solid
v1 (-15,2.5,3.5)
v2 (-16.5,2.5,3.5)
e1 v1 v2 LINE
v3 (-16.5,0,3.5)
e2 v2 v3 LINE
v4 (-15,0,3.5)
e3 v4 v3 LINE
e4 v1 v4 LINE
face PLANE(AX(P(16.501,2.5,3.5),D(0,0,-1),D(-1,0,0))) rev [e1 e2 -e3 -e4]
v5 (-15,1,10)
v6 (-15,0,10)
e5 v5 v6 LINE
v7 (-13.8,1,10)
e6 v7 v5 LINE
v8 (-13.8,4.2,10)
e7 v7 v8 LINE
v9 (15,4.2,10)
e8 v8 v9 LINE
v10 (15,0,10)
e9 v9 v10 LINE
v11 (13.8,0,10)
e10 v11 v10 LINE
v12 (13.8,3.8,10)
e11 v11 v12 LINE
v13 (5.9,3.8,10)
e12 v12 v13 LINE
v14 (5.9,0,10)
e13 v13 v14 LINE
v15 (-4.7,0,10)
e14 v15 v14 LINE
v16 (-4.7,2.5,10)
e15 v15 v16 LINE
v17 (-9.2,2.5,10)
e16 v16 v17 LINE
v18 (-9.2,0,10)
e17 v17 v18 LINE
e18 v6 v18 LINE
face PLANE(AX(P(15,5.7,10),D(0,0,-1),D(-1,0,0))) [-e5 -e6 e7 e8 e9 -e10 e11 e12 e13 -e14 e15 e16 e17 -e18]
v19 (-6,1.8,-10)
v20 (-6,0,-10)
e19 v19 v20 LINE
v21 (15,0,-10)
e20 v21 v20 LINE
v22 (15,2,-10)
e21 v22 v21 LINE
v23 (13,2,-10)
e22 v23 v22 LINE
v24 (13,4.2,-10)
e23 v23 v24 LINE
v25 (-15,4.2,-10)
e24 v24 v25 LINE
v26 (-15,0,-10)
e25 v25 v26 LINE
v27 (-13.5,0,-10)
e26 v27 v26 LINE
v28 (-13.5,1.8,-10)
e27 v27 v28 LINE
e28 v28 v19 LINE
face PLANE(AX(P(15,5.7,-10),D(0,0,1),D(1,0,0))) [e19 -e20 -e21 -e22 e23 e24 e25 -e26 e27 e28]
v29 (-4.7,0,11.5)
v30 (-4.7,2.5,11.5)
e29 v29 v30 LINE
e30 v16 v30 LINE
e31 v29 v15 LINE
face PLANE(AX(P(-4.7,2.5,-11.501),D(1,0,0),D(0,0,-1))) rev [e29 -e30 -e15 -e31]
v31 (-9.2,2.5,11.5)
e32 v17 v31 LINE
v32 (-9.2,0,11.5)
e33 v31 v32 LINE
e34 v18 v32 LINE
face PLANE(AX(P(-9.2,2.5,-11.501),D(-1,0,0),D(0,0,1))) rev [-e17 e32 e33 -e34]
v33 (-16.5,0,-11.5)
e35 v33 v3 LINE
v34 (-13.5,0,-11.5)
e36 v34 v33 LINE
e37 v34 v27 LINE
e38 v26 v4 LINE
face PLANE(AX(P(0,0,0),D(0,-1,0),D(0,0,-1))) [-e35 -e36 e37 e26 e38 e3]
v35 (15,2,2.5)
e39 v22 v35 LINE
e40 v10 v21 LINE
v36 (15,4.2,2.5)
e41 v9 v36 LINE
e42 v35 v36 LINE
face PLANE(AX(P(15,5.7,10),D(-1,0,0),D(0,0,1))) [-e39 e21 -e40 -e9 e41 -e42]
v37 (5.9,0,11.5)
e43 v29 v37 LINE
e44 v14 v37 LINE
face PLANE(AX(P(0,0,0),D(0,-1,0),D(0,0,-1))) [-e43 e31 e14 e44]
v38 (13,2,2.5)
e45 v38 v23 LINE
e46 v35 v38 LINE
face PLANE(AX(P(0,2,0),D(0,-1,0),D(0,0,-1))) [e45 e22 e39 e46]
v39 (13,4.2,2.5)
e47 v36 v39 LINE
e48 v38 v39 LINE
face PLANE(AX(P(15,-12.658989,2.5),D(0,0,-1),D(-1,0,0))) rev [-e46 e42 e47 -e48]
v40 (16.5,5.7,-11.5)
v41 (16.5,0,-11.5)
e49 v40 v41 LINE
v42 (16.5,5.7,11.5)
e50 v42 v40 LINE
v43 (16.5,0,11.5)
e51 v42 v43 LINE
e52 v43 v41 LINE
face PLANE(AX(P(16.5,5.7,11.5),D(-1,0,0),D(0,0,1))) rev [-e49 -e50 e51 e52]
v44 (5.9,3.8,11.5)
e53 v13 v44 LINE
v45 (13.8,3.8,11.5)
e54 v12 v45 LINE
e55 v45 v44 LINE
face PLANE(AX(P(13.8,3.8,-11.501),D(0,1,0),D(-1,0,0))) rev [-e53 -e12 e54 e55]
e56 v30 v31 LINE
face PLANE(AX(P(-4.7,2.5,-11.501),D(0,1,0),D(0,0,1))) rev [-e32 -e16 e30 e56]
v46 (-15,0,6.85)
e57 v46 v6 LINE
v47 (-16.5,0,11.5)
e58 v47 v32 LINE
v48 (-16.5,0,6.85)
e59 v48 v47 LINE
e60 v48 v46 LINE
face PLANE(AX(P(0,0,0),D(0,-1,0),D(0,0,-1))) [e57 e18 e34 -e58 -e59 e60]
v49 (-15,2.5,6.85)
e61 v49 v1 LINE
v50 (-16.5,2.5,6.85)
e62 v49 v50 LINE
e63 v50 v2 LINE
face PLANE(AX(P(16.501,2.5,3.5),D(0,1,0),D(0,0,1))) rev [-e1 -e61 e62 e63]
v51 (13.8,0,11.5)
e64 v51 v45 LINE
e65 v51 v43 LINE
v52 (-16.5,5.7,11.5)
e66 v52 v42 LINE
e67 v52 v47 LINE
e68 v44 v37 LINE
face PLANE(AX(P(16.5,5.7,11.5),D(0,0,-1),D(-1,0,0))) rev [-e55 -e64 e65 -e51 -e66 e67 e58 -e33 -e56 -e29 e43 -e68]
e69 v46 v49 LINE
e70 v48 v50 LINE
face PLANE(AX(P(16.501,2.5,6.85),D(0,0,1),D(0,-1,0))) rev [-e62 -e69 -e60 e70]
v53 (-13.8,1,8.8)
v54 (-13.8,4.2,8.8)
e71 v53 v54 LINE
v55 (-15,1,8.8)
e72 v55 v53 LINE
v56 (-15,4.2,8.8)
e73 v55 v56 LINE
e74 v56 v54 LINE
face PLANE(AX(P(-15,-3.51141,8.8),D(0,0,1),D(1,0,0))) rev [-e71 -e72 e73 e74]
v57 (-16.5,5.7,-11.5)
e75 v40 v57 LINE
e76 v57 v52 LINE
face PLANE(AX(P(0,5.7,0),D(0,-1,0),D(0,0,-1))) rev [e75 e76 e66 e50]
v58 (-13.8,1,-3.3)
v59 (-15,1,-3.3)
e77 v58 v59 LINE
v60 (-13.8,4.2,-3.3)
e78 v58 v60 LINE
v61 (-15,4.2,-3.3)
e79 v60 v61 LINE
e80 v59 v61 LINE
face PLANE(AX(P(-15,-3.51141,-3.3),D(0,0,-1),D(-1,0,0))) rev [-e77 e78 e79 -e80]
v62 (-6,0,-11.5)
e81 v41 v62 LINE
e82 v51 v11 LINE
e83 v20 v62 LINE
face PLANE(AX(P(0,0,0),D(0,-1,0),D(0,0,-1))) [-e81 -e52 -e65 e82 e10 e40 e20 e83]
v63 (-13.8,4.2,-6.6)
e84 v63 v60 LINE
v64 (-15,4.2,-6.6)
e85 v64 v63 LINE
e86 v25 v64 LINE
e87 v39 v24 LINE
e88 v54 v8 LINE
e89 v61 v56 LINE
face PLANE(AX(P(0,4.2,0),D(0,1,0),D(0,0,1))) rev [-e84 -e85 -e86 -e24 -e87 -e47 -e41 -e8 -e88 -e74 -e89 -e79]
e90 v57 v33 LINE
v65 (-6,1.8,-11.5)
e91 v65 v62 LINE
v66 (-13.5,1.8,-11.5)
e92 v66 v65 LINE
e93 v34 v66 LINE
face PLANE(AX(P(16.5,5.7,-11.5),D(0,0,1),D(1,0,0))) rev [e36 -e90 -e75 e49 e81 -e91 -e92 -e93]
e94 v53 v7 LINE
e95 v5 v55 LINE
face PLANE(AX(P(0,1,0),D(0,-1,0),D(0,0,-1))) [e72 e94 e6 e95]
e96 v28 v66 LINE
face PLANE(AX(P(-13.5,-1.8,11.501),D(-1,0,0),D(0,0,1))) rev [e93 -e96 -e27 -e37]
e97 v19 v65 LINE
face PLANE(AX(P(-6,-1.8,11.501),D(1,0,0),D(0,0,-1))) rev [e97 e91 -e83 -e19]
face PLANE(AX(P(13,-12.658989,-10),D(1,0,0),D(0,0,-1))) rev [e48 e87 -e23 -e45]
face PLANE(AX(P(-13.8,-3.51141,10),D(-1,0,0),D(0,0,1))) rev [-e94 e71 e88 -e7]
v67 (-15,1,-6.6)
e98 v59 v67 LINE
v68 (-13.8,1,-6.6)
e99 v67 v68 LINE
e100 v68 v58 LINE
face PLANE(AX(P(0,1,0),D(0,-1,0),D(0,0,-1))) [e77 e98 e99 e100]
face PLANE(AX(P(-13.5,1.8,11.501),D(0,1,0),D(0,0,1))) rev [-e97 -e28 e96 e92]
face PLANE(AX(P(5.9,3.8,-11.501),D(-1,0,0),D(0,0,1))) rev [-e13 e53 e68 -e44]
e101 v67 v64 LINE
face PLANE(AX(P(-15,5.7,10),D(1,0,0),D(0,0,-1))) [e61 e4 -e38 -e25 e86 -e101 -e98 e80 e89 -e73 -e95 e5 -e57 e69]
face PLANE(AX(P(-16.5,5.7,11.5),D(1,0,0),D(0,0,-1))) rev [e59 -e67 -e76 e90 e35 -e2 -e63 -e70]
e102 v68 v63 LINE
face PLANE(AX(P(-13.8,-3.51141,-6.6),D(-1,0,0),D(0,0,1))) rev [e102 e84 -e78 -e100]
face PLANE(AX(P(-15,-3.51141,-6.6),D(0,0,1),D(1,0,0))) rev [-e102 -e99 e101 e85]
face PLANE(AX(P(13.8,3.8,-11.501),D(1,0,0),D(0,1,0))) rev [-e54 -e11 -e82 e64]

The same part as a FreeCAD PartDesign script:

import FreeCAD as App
import Part
import Sketcher
Q = App.Units.Quantity

doc = App.newDocument("Part")
body = doc.addObject("PartDesign::Body", "Body")

# Sketch on XZ plane
sketch1 = body.newObject("Sketcher::SketchObject", "Sketch")
sketch1.AttachmentSupport = (doc.getObject("XZ_Plane"), [""])
sketch1.MapMode = "FlatFace"
sketch1.addGeometry([
    Part.LineSegment(App.Vector(-16.5, -11.5, 0), App.Vector(-16.5, 11.5, 0)),  # 0
    Part.LineSegment(App.Vector(-16.5, 11.5, 0), App.Vector(16.5, 11.5, 0)),  # 1
    Part.LineSegment(App.Vector(16.5, 11.5, 0), App.Vector(16.5, -11.5, 0)),  # 2
    Part.LineSegment(App.Vector(16.5, -11.5, 0), App.Vector(-16.5, -11.5, 0)),  # 3
    Part.LineSegment(App.Vector(15, 10, 0), App.Vector(-15, 10, 0)),  # 4
    Part.LineSegment(App.Vector(-15, 10, 0), App.Vector(-15, -10, 0)),  # 5
    Part.LineSegment(App.Vector(-15, -10, 0), App.Vector(15, -10, 0)),  # 6
    Part.LineSegment(App.Vector(15, -10, 0), App.Vector(15, 10, 0)),  # 7
], False)
sketch1.addConstraint([
    Sketcher.Constraint("Coincident", 0, 2, 1, 1),
    Sketcher.Constraint("Coincident", 1, 2, 2, 1),
    Sketcher.Constraint("Coincident", 2, 2, 3, 1),
    Sketcher.Constraint("Coincident", 3, 2, 0, 1),
    Sketcher.Constraint("Coincident", 4, 2, 5, 1),
    Sketcher.Constraint("Coincident", 5, 2, 6, 1),
    Sketcher.Constraint("Coincident", 6, 2, 7, 1),
    Sketcher.Constraint("Coincident", 7, 2, 4, 1),
    Sketcher.Constraint("Vertical", 0),
    Sketcher.Constraint("Horizontal", 1),
    Sketcher.Constraint("Vertical", 2),
    Sketcher.Constraint("Horizontal", 3),
    Sketcher.Constraint("Horizontal", 4),
    Sketcher.Constraint("Vertical", 5),
    Sketcher.Constraint("Horizontal", 6),
    Sketcher.Constraint("Vertical", 7),
    Sketcher.Constraint("Symmetric", 0, 2, 2, 2, -1, 1),
    Sketcher.Constraint("Symmetric", 4, 2, 6, 2, -1, 1),
    Sketcher.Constraint("DistanceX", 1, 1, 1, 2, Q("33 mm")),
    Sketcher.Constraint("DistanceX", 4, 2, 4, 1, Q("30 mm")),
    Sketcher.Constraint("DistanceY", 0, 1, 0, 2, Q("23 mm")),
    Sketcher.Constraint("DistanceY", 5, 2, 5, 1, Q("20 mm")),
])
pad1 = body.newObject("PartDesign::Pad", "Pad")
pad1.Profile = sketch1
pad1.Length = 5.7
pad1.Reversed = True

# Sketch on XZ plane
sketch2 = body.newObject("Sketcher::SketchObject", "Sketch001")
sketch2.AttachmentSupport = (doc.getObject("XZ_Plane"), [""])
sketch2.MapMode = "FlatFace"
sketch2.AttachmentOffset = App.Placement(App.Vector(0, 0, -5.7), App.Rotation())
sketch2.addGeometry([
    Part.LineSegment(App.Vector(-15, -10, 0), App.Vector(-15, 10, 0)),
    Part.LineSegment(App.Vector(-15, 10, 0), App.Vector(15, 10, 0)),
    Part.LineSegment(App.Vector(15, 10, 0), App.Vector(15, -10, 0)),
    Part.LineSegment(App.Vector(15, -10, 0), App.Vector(-15, -10, 0)),
], False)
sketch2.addConstraint([
    Sketcher.Constraint("Coincident", 0, 2, 1, 1),
    Sketcher.Constraint("Coincident", 1, 2, 2, 1),
    Sketcher.Constraint("Coincident", 2, 2, 3, 1),
    Sketcher.Constraint("Coincident", 3, 2, 0, 1),
    Sketcher.Constraint("Vertical", 0),
    Sketcher.Constraint("Horizontal", 1),
    Sketcher.Constraint("Vertical", 2),
    Sketcher.Constraint("Horizontal", 3),
    Sketcher.Constraint("Symmetric", 0, 2, 2, 2, -1, 1),
    Sketcher.Constraint("DistanceX", 1, 1, 1, 2, Q("30 mm")),
    Sketcher.Constraint("DistanceY", 0, 1, 0, 2, Q("20 mm")),
])
pad2 = body.newObject("PartDesign::Pad", "Pad001")
pad2.Profile = sketch2
pad2.Length = 1.5

# Sketch on XY plane
sketch3 = body.newObject("Sketcher::SketchObject", "Sketch002")
sketch3.AttachmentSupport = (doc.getObject("XY_Plane"), [""])
sketch3.MapMode = "FlatFace"
sketch3.AttachmentOffset = App.Placement(App.Vector(0, 0, -11.5), App.Rotation())
sketch3.addGeometry([
    Part.LineSegment(App.Vector(-6, 1.8, 0), App.Vector(-6, -1.8, 0)),
    Part.LineSegment(App.Vector(-6, -1.8, 0), App.Vector(-13.5, -1.8, 0)),
    Part.LineSegment(App.Vector(-13.5, -1.8, 0), App.Vector(-13.5, 1.8, 0)),
    Part.LineSegment(App.Vector(-13.5, 1.8, 0), App.Vector(-6, 1.8, 0)),
], False)
sketch3.addConstraint([
    Sketcher.Constraint("Coincident", 0, 2, 1, 1),
    Sketcher.Constraint("Coincident", 1, 2, 2, 1),
    Sketcher.Constraint("Coincident", 2, 2, 3, 1),
    Sketcher.Constraint("Coincident", 3, 2, 0, 1),
    Sketcher.Constraint("Vertical", 0),
    Sketcher.Constraint("Horizontal", 1),
    Sketcher.Constraint("Vertical", 2),
    Sketcher.Constraint("Horizontal", 3),
    Sketcher.Constraint("DistanceX", 1, 2, 1, 1, Q("7.5 mm")),
    Sketcher.Constraint("DistanceY", 0, 2, 0, 1, Q("3.6 mm")),
    Sketcher.Constraint("DistanceX", 0, 2, -1, 1, Q("6 mm")),
    Sketcher.Constraint("DistanceY", 0, 2, -1, 1, Q("1.8 mm")),
])
pocket1 = body.newObject("PartDesign::Pocket", "Pocket")
pocket1.Profile = sketch3
pocket1.Type = "UpToFirst"
pocket1.Reversed = True

# Sketch on XY plane
sketch4 = body.newObject("Sketcher::SketchObject", "Sketch003")
sketch4.AttachmentSupport = (doc.getObject("XY_Plane"), [""])
sketch4.MapMode = "FlatFace"
sketch4.AttachmentOffset = App.Placement(App.Vector(0, 0, 11.5), App.Rotation())
sketch4.addGeometry([
    Part.LineSegment(App.Vector(5.9, 3.8, 0), App.Vector(5.9, -3.8, 0)),
    Part.LineSegment(App.Vector(5.9, -3.8, 0), App.Vector(13.8, -3.8, 0)),
    Part.LineSegment(App.Vector(13.8, -3.8, 0), App.Vector(13.8, 3.8, 0)),
    Part.LineSegment(App.Vector(13.8, 3.8, 0), App.Vector(5.9, 3.8, 0)),
], False)
sketch4.addConstraint([
    Sketcher.Constraint("Coincident", 0, 2, 1, 1),
    Sketcher.Constraint("Coincident", 1, 2, 2, 1),
    Sketcher.Constraint("Coincident", 2, 2, 3, 1),
    Sketcher.Constraint("Coincident", 3, 2, 0, 1),
    Sketcher.Constraint("Vertical", 0),
    Sketcher.Constraint("Horizontal", 1),
    Sketcher.Constraint("Vertical", 2),
    Sketcher.Constraint("Horizontal", 3),
    Sketcher.Constraint("DistanceX", 1, 1, 1, 2, Q("7.9 mm")),
    Sketcher.Constraint("DistanceY", 0, 2, 0, 1, Q("7.6 mm")),
    Sketcher.Constraint("DistanceX", -1, 1, 0, 2, Q("5.9 mm")),
    Sketcher.Constraint("DistanceY", 0, 2, -1, 1, Q("3.8 mm")),
])
pocket2 = body.newObject("PartDesign::Pocket", "Pocket001")
pocket2.Profile = sketch4
pocket2.Type = "UpToFirst"

# Sketch on XY plane
sketch5 = body.newObject("Sketcher::SketchObject", "Sketch004")
sketch5.AttachmentSupport = (doc.getObject("XY_Plane"), [""])
sketch5.MapMode = "FlatFace"
sketch5.AttachmentOffset = App.Placement(App.Vector(0, 0, 11.5), App.Rotation())
sketch5.addGeometry([
    Part.LineSegment(App.Vector(-9.2, 2.5, 0), App.Vector(-9.2, -2.5, 0)),
    Part.LineSegment(App.Vector(-9.2, -2.5, 0), App.Vector(-4.7, -2.5, 0)),
    Part.LineSegment(App.Vector(-4.7, -2.5, 0), App.Vector(-4.7, 2.5, 0)),
    Part.LineSegment(App.Vector(-4.7, 2.5, 0), App.Vector(-9.2, 2.5, 0)),
], False)
sketch5.addConstraint([
    Sketcher.Constraint("Coincident", 0, 2, 1, 1),
    Sketcher.Constraint("Coincident", 1, 2, 2, 1),
    Sketcher.Constraint("Coincident", 2, 2, 3, 1),
    Sketcher.Constraint("Coincident", 3, 2, 0, 1),
    Sketcher.Constraint("Vertical", 0),
    Sketcher.Constraint("Horizontal", 1),
    Sketcher.Constraint("Vertical", 2),
    Sketcher.Constraint("Horizontal", 3),
    Sketcher.Constraint("DistanceY", 0, 2, 0, 1, Q("5 mm")),
    Sketcher.Constraint("DistanceX", 1, 1, 1, 2, Q("4.5 mm")),
    Sketcher.Constraint("DistanceX", 0, 2, -1, 1, Q("9.2 mm")),
    Sketcher.Constraint("DistanceY", 0, 2, -1, 1, Q("2.5 mm")),
])
pocket3 = body.newObject("PartDesign::Pocket", "Pocket002")
pocket3.Profile = sketch5
pocket3.Type = "UpToFirst"

# Sketch on YZ plane
sketch6 = body.newObject("Sketcher::SketchObject", "Sketch005")
sketch6.AttachmentSupport = (doc.getObject("YZ_Plane"), [""])
sketch6.MapMode = "FlatFace"
sketch6.AttachmentOffset = App.Placement(App.Vector(0, 0, -16.5), App.Rotation())
sketch6.addGeometry([
    Part.LineSegment(App.Vector(2.5, 3.5, 0), App.Vector(-2.5, 3.5, 0)),
    Part.LineSegment(App.Vector(-2.5, 3.5, 0), App.Vector(-2.5, 6.85, 0)),
    Part.LineSegment(App.Vector(-2.5, 6.85, 0), App.Vector(2.5, 6.85, 0)),
    Part.LineSegment(App.Vector(2.5, 6.85, 0), App.Vector(2.5, 3.5, 0)),
], False)
sketch6.addConstraint([
    Sketcher.Constraint("Coincident", 0, 2, 1, 1),
    Sketcher.Constraint("Coincident", 1, 2, 2, 1),
    Sketcher.Constraint("Coincident", 2, 2, 3, 1),
    Sketcher.Constraint("Coincident", 3, 2, 0, 1),
    Sketcher.Constraint("Horizontal", 0),
    Sketcher.Constraint("Vertical", 1),
    Sketcher.Constraint("Horizontal", 2),
    Sketcher.Constraint("Vertical", 3),
    Sketcher.Constraint("DistanceX", 0, 2, 0, 1, Q("5 mm")),
    Sketcher.Constraint("DistanceY", 1, 1, 1, 2, Q("3.35 mm")),
    Sketcher.Constraint("DistanceX", 0, 2, -1, 1, Q("2.5 mm")),
    Sketcher.Constraint("DistanceY", -1, 1, 0, 2, Q("3.5 mm")),
])
pocket4 = body.newObject("PartDesign::Pocket", "Pocket003")
pocket4.Profile = sketch6
pocket4.Type = "UpToFirst"
pocket4.Reversed = True

# Sketch on XZ plane
sketch7 = body.newObject("Sketcher::SketchObject", "Sketch006")
sketch7.AttachmentSupport = (doc.getObject("XZ_Plane"), [""])
sketch7.MapMode = "FlatFace"
sketch7.AttachmentOffset = App.Placement(App.Vector(0, 0, -4.2), App.Rotation())
sketch7.addGeometry([
    Part.LineSegment(App.Vector(13, 2.5, 0), App.Vector(13, -10, 0)),
    Part.LineSegment(App.Vector(13, -10, 0), App.Vector(15, -10, 0)),
    Part.LineSegment(App.Vector(15, -10, 0), App.Vector(15, 2.5, 0)),
    Part.LineSegment(App.Vector(15, 2.5, 0), App.Vector(13, 2.5, 0)),
], False)
sketch7.addConstraint([
    Sketcher.Constraint("Coincident", 0, 2, 1, 1),
    Sketcher.Constraint("Coincident", 1, 2, 2, 1),
    Sketcher.Constraint("Coincident", 2, 2, 3, 1),
    Sketcher.Constraint("Coincident", 3, 2, 0, 1),
    Sketcher.Constraint("Vertical", 0),
    Sketcher.Constraint("Horizontal", 1),
    Sketcher.Constraint("Vertical", 2),
    Sketcher.Constraint("Horizontal", 3),
    Sketcher.Constraint("DistanceX", 1, 1, 1, 2, Q("2 mm")),
    Sketcher.Constraint("DistanceY", 0, 2, 0, 1, Q("12.5 mm")),
    Sketcher.Constraint("DistanceX", -1, 1, 0, 2, Q("13 mm")),
    Sketcher.Constraint("DistanceY", 0, 2, -1, 1, Q("10 mm")),
])
pad3 = body.newObject("PartDesign::Pad", "Pad002")
pad3.Profile = sketch7
pad3.Length = 2.2

# Sketch on XZ plane
sketch8 = body.newObject("Sketcher::SketchObject", "Sketch007")
sketch8.AttachmentSupport = (doc.getObject("XZ_Plane"), [""])
sketch8.MapMode = "FlatFace"
sketch8.AttachmentOffset = App.Placement(App.Vector(0, 0, -4.2), App.Rotation())
sketch8.addGeometry([
    Part.LineSegment(App.Vector(-15, -3.3, 0), App.Vector(-15, -6.6, 0)),  # 0
    Part.LineSegment(App.Vector(-15, -6.6, 0), App.Vector(-13.8, -6.6, 0)),  # 1
    Part.LineSegment(App.Vector(-13.8, -6.6, 0), App.Vector(-13.8, -3.3, 0)),  # 2
    Part.LineSegment(App.Vector(-13.8, -3.3, 0), App.Vector(-15, -3.3, 0)),  # 3
    Part.LineSegment(App.Vector(-15, 10, 0), App.Vector(-15, 8.8, 0)),  # 4
    Part.LineSegment(App.Vector(-15, 8.8, 0), App.Vector(-13.8, 8.8, 0)),  # 5
    Part.LineSegment(App.Vector(-13.8, 8.8, 0), App.Vector(-13.8, 10, 0)),  # 6
    Part.LineSegment(App.Vector(-13.8, 10, 0), App.Vector(-15, 10, 0)),  # 7
], False)
sketch8.addConstraint([
    Sketcher.Constraint("Coincident", 0, 2, 1, 1),
    Sketcher.Constraint("Coincident", 1, 2, 2, 1),
    Sketcher.Constraint("Coincident", 2, 2, 3, 1),
    Sketcher.Constraint("Coincident", 3, 2, 0, 1),
    Sketcher.Constraint("Coincident", 4, 2, 5, 1),
    Sketcher.Constraint("Coincident", 5, 2, 6, 1),
    Sketcher.Constraint("Coincident", 6, 2, 7, 1),
    Sketcher.Constraint("Coincident", 7, 2, 4, 1),
    Sketcher.Constraint("Vertical", 0),
    Sketcher.Constraint("Horizontal", 1),
    Sketcher.Constraint("Vertical", 2),
    Sketcher.Constraint("Horizontal", 3),
    Sketcher.Constraint("Vertical", 4),
    Sketcher.Constraint("Horizontal", 5),
    Sketcher.Constraint("Vertical", 6),
    Sketcher.Constraint("Horizontal", 7),
    Sketcher.Constraint("Vertical", 3, 2, 4, 2),
    Sketcher.Constraint("Vertical", 2, 2, 5, 2),
    Sketcher.Constraint("Equal", 7, 4),
    Sketcher.Constraint("DistanceX", 1, 1, 1, 2, Q("1.2 mm")),
    Sketcher.Constraint("DistanceY", 0, 2, 0, 1, Q("3.3 mm")),
    Sketcher.Constraint("DistanceX", 0, 2, -1, 1, Q("15 mm")),
    Sketcher.Constraint("DistanceY", -1, 1, 6, 2, Q("10 mm")),
    Sketcher.Constraint("DistanceY", 0, 2, -1, 1, Q("6.6 mm")),
])
pad4 = body.newObject("PartDesign::Pad", "Pad003")
pad4.Profile = sketch8
pad4.Length = 3.2

doc.recompute()
